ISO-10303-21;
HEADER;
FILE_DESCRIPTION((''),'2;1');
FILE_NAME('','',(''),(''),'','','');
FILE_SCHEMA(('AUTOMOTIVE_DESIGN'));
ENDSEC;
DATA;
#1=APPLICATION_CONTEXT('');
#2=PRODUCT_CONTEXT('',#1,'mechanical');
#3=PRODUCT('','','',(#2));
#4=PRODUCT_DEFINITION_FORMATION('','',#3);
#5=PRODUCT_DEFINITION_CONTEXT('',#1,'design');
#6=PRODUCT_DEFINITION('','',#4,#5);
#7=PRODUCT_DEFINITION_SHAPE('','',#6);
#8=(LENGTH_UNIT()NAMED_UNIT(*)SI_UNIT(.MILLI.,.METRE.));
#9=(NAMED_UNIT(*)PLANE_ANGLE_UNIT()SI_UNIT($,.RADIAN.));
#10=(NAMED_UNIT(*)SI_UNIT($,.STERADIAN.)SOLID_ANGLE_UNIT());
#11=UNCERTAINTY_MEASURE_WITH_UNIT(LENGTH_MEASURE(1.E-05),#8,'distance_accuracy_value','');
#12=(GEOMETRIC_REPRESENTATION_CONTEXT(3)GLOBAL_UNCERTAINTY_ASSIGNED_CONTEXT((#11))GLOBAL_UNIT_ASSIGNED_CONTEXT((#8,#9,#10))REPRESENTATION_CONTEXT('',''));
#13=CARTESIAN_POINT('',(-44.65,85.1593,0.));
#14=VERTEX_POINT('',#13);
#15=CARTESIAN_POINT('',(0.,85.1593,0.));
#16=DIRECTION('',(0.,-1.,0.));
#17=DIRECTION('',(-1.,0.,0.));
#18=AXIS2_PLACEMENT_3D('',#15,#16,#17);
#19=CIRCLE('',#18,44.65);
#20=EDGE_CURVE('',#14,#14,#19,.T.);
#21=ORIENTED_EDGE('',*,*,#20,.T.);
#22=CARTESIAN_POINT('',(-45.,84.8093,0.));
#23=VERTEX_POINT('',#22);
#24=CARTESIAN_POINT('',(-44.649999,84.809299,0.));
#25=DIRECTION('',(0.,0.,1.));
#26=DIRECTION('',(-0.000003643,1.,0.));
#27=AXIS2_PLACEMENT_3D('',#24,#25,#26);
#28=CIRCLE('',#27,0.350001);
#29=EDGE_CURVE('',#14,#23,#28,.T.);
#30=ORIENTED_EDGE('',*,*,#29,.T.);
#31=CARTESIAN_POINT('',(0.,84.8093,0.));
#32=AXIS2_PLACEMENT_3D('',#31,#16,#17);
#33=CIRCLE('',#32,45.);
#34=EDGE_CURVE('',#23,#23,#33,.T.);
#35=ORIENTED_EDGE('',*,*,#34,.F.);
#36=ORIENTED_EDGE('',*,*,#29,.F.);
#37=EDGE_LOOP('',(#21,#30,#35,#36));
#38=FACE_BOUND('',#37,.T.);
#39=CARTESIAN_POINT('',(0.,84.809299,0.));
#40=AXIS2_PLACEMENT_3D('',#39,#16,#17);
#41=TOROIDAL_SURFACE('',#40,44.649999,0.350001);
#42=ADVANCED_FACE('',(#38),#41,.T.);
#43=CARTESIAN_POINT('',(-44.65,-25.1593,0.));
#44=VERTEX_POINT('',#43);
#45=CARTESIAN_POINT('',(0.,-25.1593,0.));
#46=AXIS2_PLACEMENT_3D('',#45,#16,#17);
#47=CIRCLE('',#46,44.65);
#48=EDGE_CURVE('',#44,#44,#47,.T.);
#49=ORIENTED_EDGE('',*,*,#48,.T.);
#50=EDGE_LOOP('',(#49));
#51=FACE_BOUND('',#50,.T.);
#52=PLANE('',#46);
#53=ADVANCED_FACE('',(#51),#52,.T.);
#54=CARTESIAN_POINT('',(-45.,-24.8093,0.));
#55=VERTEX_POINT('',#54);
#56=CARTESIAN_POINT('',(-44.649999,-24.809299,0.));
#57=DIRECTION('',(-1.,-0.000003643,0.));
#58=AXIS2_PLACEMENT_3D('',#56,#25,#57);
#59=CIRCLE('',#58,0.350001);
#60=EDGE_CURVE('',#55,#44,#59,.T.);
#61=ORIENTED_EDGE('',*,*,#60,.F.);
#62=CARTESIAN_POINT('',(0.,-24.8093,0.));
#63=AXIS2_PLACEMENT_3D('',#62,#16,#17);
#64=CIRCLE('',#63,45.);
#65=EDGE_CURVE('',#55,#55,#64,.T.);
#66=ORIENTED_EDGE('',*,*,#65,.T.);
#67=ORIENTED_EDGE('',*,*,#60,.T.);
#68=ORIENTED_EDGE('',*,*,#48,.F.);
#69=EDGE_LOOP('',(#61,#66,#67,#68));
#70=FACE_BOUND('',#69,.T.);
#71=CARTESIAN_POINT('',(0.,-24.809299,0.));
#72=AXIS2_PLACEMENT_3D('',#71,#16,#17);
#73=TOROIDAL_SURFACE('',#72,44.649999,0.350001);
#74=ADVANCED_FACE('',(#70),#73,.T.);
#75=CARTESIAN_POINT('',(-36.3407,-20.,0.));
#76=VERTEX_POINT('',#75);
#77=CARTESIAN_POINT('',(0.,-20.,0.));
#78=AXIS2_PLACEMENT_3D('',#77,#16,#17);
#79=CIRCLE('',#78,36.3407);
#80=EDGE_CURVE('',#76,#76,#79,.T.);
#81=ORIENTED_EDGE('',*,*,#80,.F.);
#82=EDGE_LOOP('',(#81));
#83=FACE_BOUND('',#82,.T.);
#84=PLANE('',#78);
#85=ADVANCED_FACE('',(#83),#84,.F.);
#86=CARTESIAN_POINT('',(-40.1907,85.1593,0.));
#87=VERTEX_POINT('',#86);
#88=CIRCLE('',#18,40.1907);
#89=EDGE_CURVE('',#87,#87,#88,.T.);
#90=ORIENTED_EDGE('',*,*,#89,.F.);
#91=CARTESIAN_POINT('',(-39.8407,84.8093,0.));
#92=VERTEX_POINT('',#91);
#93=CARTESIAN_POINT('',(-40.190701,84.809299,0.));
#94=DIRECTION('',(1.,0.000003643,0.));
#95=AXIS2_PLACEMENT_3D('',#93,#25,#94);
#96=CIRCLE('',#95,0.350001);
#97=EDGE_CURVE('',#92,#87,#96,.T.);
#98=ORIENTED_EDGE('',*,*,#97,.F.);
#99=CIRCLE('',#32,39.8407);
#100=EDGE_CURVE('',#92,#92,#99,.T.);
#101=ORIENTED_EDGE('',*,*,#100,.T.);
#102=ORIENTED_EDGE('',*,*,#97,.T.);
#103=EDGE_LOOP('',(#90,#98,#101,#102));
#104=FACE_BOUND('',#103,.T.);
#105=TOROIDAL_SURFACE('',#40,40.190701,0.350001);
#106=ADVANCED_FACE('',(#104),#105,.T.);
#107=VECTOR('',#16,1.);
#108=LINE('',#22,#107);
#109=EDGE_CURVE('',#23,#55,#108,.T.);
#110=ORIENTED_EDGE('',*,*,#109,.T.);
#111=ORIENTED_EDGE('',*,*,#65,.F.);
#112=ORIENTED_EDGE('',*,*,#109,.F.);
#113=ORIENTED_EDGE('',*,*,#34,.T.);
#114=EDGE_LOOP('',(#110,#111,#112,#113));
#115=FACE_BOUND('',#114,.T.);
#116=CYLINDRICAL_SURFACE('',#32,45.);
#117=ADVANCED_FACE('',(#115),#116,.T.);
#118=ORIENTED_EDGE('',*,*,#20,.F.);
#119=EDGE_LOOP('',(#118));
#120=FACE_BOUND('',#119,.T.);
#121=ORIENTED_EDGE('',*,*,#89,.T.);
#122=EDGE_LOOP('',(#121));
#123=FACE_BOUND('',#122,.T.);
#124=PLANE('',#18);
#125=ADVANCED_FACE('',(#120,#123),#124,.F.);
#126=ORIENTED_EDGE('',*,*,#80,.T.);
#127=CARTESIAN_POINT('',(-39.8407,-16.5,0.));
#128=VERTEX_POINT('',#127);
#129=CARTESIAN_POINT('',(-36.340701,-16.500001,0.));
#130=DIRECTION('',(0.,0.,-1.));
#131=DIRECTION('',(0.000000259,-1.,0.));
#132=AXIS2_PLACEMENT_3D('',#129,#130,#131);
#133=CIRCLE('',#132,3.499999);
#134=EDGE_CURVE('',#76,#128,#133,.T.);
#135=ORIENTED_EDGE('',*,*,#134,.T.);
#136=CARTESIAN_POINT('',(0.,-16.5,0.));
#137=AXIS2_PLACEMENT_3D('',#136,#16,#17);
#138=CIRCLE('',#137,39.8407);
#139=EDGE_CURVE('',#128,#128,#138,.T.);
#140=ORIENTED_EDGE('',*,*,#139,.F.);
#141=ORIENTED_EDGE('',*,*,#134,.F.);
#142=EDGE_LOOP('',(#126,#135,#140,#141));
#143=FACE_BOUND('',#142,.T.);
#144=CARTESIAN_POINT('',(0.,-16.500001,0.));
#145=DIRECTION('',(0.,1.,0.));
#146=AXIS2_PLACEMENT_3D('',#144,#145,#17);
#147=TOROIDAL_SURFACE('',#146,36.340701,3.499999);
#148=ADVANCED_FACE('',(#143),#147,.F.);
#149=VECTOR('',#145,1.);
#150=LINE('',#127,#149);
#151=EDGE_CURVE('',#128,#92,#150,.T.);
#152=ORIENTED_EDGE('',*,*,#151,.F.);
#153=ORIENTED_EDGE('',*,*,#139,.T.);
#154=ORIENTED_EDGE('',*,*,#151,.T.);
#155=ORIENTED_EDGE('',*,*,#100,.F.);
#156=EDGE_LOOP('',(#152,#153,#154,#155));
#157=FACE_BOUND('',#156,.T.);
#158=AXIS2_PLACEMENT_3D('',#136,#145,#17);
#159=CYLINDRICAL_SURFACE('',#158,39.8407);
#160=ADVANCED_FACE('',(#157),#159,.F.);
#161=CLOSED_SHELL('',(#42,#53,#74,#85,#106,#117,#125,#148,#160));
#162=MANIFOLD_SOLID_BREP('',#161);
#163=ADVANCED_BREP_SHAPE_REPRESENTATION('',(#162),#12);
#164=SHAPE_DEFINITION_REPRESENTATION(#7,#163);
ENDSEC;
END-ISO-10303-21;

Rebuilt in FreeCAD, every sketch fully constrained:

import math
import FreeCAD as App
import Part
import Sketcher

V = App.Vector
Q = App.Units.Quantity

doc = App.newDocument("Part")
body = doc.addObject("PartDesign::Body", "Body")

# Sketch on XY plane
sketch1 = doc.addObject("Sketcher::SketchObject", "Sketch")
body.addObject(sketch1)
sketch1.AttachmentSupport = (doc.XY_Plane, [""])
sketch1.MapMode = "FlatFace"
sketch1.addGeometry([
    Part.LineSegment(V(0, -25.16, 0), V(0, -20, 0)),  # 0
    Part.LineSegment(V(0, -20, 0), V(-36.34, -20, 0)),  # 1
    Part.ArcOfCircle(Part.Circle(V(-36.34, -16.5, 0), V(0, 0, 1), 3.5), math.radians(180), math.radians(270)),  # 2
    Part.LineSegment(V(-39.84, -16.5, 0), V(-39.84, 84.81, 0)),  # 3
    Part.ArcOfCircle(Part.Circle(V(-40.19, 84.81, 0), V(0, 0, 1), 0.35), math.radians(0), math.radians(90)),  # 4
    Part.LineSegment(V(-40.19, 85.16, 0), V(-44.65, 85.16, 0)),  # 5
    Part.ArcOfCircle(Part.Circle(V(-44.65, 84.81, 0), V(0, 0, 1), 0.35), math.radians(90), math.radians(180)),  # 6
    Part.LineSegment(V(-45, 84.81, 0), V(-45, -24.81, 0)),  # 7
    Part.ArcOfCircle(Part.Circle(V(-44.65, -24.81, 0), V(0, 0, 1), 0.35), math.radians(-180), math.radians(-90)),  # 8
    Part.LineSegment(V(-44.65, -25.16, 0), V(0, -25.16, 0)),  # 9
], False)
sketch1.addConstraint([
    Sketcher.Constraint("Coincident", 0, 2, 1, 1),
    Sketcher.Constraint("Tangent", 1, 2, 2, 2),
    Sketcher.Constraint("Tangent", 2, 1, 3, 1),
    Sketcher.Constraint("Coincident", 3, 2, 4, 1),
    Sketcher.Constraint("Coincident", 4, 2, 5, 1),
    Sketcher.Constraint("Coincident", 5, 2, 6, 1),
    Sketcher.Constraint("Coincident", 6, 2, 7, 1),
    Sketcher.Constraint("Coincident", 7, 2, 8, 1),
    Sketcher.Constraint("Coincident", 8, 2, 9, 1),
    Sketcher.Constraint("Coincident", 9, 2, 0, 1),
    Sketcher.Constraint("Vertical", 0),
    Sketcher.Constraint("Horizontal", 1),
    Sketcher.Constraint("Vertical", 3),
    Sketcher.Constraint("Horizontal", 5),
    Sketcher.Constraint("Vertical", 7),
    Sketcher.Constraint("Horizontal", 9),
    Sketcher.Constraint("Equal", 4, 6),
    Sketcher.Constraint("Equal", 6, 8),
    Sketcher.Constraint("PointOnObject", 0, 2, -2),
    Sketcher.Constraint("Horizontal", 6, 3, 3, 2),
    Sketcher.Constraint("Horizontal", 3, 2, 6, 2),
    Sketcher.Constraint("Horizontal", 8, 3, 7, 2),
    Sketcher.Constraint("Vertical", 8, 3, 5, 2),
    Sketcher.Constraint("Vertical", 5, 2, 8, 2),
    Sketcher.Constraint("Radius", 2, Q("3.499999 mm")),
    Sketcher.Constraint("Radius", 4, Q("0.350001 mm")),
    Sketcher.Constraint("DistanceY", 0, 2, -1, 1, Q("20 mm")),
    Sketcher.Constraint("DistanceX", 6, 2, -1, 1, Q("45 mm")),
    Sketcher.Constraint("DistanceX", 4, 2, 3, 2, Q("0.35 mm")),
    Sketcher.Constraint("DistanceX", 1, 2, 1, 1, Q("36.3407 mm")),
    Sketcher.Constraint("DistanceY", 0, 1, 0, 2, Q("5.1593 mm")),
    Sketcher.Constraint("DistanceY", 3, 1, 3, 2, Q("101.3093 mm")),
])
revolution = doc.addObject("PartDesign::Revolution", "Revolution")
body.addObject(revolution)
revolution.Profile = sketch1
revolution.ReferenceAxis = (sketch1, ["V_Axis"])
revolution.Angle = 360

doc.recompute()
